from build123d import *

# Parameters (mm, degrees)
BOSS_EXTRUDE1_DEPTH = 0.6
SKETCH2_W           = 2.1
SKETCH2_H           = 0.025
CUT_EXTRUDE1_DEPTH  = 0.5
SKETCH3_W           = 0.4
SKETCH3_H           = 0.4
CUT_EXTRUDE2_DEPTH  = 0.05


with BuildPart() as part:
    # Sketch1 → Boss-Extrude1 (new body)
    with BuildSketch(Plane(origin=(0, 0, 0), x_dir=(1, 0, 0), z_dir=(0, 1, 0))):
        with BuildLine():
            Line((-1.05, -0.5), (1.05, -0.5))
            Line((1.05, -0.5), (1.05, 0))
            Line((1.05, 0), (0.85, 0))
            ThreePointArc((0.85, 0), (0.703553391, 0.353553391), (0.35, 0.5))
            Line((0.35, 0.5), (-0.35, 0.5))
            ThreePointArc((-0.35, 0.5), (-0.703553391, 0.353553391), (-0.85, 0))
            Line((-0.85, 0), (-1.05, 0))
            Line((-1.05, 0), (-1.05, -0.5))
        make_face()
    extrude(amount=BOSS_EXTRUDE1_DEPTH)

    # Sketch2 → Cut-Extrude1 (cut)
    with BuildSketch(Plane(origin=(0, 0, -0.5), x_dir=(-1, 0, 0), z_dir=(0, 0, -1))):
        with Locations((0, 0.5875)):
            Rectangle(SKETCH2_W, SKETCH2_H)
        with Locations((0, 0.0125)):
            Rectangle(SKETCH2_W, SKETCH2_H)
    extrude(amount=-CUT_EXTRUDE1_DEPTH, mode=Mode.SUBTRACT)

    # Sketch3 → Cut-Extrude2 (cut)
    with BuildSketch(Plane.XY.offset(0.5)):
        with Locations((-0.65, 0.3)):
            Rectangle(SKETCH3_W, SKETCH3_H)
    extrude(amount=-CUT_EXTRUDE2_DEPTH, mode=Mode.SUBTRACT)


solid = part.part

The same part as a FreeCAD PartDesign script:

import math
import FreeCAD as App
import Part
import Sketcher

V = App.Vector
Q = App.Units.Quantity


def add_polygon(sketch, points):
    """Adds a closed chain of lines whose ends are joined by coincident constraints."""
    first, n = sketch.GeometryCount, len(points)
    for a, b in zip(points, points[1:] + points[:1]):
        sketch.addGeometry(Part.LineSegment(App.Vector(*a, 0), App.Vector(*b, 0)), False)
    for i in range(n):
        sketch.addConstraint(Sketcher.Constraint("Coincident", first + i, 2, first + (i + 1) % n, 1))

doc = App.newDocument("Part")
body = doc.addObject("PartDesign::Body", "Body")

# Sketch on XZ plane
sketch1 = body.newObject("Sketcher::SketchObject", "Sketch")
sketch1.AttachmentSupport = (doc.getObject("XZ_Plane"), [""])
sketch1.MapMode = "FlatFace"
sketch1.addGeometry([
    Part.LineSegment(V(-1.05, 0.5, 0), V(1.05, 0.5, 0)),  # 0
    Part.LineSegment(V(1.05, 0.5, 0), V(1.05, 0, 0)),  # 1
    Part.LineSegment(V(1.05, 0, 0), V(0.85, 0, 0)),  # 2
    Part.ArcOfCircle(Part.Circle(V(0.35, 0, 0), V(0, 0, 1), 0.5), math.radians(-90), math.radians(0)),  # 3
    Part.LineSegment(V(0.35, -0.5, 0), V(-0.35, -0.5, 0)),  # 4
    Part.ArcOfCircle(Part.Circle(V(-0.35, 0, 0), V(0, 0, 1), 0.5), math.radians(180), math.radians(270)),  # 5
    Part.LineSegment(V(-0.85, 0, 0), V(-1.05, 0, 0)),  # 6
    Part.LineSegment(V(-1.05, 0, 0), V(-1.05, 0.5, 0)),  # 7
], False)
sketch1.addConstraint([
    Sketcher.Constraint("Coincident", 0, 2, 1, 1),
    Sketcher.Constraint("Coincident", 1, 2, 2, 1),
    Sketcher.Constraint("Coincident", 2, 2, 3, 2),
    Sketcher.Constraint("Tangent", 3, 1, 4, 1),
    Sketcher.Constraint("Tangent", 4, 2, 5, 2),
    Sketcher.Constraint("Coincident", 5, 1, 6, 1),
    Sketcher.Constraint("Coincident", 6, 2, 7, 1),
    Sketcher.Constraint("Coincident", 7, 2, 0, 1),
    Sketcher.Constraint("Horizontal", 0),
    Sketcher.Constraint("Vertical", 1),
    Sketcher.Constraint("Horizontal", 2),
    Sketcher.Constraint("Horizontal", 4),
    Sketcher.Constraint("Horizontal", 6),
    Sketcher.Constraint("Vertical", 7),
    Sketcher.Constraint("Equal", 3, 5),
    Sketcher.Constraint("Symmetric", 3, 3, 5, 3, -1, 1),
    Sketcher.Constraint("Symmetric", 1, 2, 6, 2, -1, 1),
    Sketcher.Constraint("PointOnObject", 1, 2, -1),
    Sketcher.Constraint("Radius", 3, Q("0.5 mm")),
    Sketcher.Constraint("DistanceX", 0, 1, 0, 2, Q("2.1 mm")),
    Sketcher.Constraint("DistanceX", 2, 2, 2, 1, Q("0.2 mm")),
    Sketcher.Constraint("DistanceY", 1, 2, 1, 1, Q("0.5 mm")),
])
pad1 = body.newObject("PartDesign::Pad", "Pad")
pad1.Profile = sketch1
pad1.Length = 0.6
pad1.Reversed = True

# Sketch on XY plane
sketch2 = body.newObject("Sketcher::SketchObject", "Sketch001")
sketch2.AttachmentSupport = (doc.getObject("XY_Plane"), [""])
sketch2.MapMode = "FlatFace"
sketch2.AttachmentOffset = App.Placement(V(0, 0, -0.5), App.Rotation())
add_polygon(sketch2, [(1.05, 0.6), (1.05, 0.575), (-1.05, 0.575), (-1.05, 0.6)])  # lines 0-3
add_polygon(sketch2, [(1.05, 0.025), (1.05, 0), (-1.05, 0), (-1.05, 0.025)])  # lines 4-7
sketch2.addConstraint([
    Sketcher.Constraint("Vertical", 0),
    Sketcher.Constraint("Horizontal", 1),
    Sketcher.Constraint("Vertical", 2),
    Sketcher.Constraint("Horizontal", 3),
    Sketcher.Constraint("Vertical", 4),
    Sketcher.Constraint("Horizontal", 5),
    Sketcher.Constraint("Vertical", 6),
    Sketcher.Constraint("Horizontal", 7),
    Sketcher.Constraint("Symmetric", 4, 2, 5, 2, -1, 1),
    Sketcher.Constraint("Vertical", 3, 2, 4, 2),
    Sketcher.Constraint("Vertical", 2, 2, 5, 2),
    Sketcher.Constraint("Equal", 2, 4),
    Sketcher.Constraint("DistanceX", 1, 2, 1, 1, Q("2.1 mm")),
    Sketcher.Constraint("DistanceY", -1, 1, 2, 2, Q("0.6 mm")),
    Sketcher.Constraint("DistanceY", 0, 2, 0, 1, Q("0.025 mm")),
])
pocket1 = body.newObject("PartDesign::Pocket", "Pocket")
pocket1.Profile = sketch2
pocket1.Length = 0.5
pocket1.Reversed = True

# Sketch on XY plane
sketch3 = body.newObject("Sketcher::SketchObject", "Sketch002")
sketch3.AttachmentSupport = (doc.getObject("XY_Plane"), [""])
sketch3.MapMode = "FlatFace"
sketch3.AttachmentOffset = App.Placement(V(0, 0, 0.5), App.Rotation())
add_polygon(sketch3, [(-0.85, 0.5), (-0.85, 0.1), (-0.45, 0.1), (-0.45, 0.5)])  # lines 0-3
sketch3.addConstraint([
    Sketcher.Constraint("Vertical", 0),
    Sketcher.Constraint("Horizontal", 1),
    Sketcher.Constraint("Vertical", 2),
    Sketcher.Constraint("Horizontal", 3),
    Sketcher.Constraint("Equal", 3, 0),
    Sketcher.Constraint("DistanceX", 1, 1, 1, 2, Q("0.4 mm")),
    Sketcher.Constraint("DistanceY", -1, 1, 0, 2, Q("0.1 mm")),
    Sketcher.Constraint("DistanceX", 0, 2, -1, 1, Q("0.85 mm")),
])
pocket2 = body.newObject("PartDesign::Pocket", "Pocket001")
pocket2.Profile = sketch3
pocket2.Length = 0.05

doc.recompute()
